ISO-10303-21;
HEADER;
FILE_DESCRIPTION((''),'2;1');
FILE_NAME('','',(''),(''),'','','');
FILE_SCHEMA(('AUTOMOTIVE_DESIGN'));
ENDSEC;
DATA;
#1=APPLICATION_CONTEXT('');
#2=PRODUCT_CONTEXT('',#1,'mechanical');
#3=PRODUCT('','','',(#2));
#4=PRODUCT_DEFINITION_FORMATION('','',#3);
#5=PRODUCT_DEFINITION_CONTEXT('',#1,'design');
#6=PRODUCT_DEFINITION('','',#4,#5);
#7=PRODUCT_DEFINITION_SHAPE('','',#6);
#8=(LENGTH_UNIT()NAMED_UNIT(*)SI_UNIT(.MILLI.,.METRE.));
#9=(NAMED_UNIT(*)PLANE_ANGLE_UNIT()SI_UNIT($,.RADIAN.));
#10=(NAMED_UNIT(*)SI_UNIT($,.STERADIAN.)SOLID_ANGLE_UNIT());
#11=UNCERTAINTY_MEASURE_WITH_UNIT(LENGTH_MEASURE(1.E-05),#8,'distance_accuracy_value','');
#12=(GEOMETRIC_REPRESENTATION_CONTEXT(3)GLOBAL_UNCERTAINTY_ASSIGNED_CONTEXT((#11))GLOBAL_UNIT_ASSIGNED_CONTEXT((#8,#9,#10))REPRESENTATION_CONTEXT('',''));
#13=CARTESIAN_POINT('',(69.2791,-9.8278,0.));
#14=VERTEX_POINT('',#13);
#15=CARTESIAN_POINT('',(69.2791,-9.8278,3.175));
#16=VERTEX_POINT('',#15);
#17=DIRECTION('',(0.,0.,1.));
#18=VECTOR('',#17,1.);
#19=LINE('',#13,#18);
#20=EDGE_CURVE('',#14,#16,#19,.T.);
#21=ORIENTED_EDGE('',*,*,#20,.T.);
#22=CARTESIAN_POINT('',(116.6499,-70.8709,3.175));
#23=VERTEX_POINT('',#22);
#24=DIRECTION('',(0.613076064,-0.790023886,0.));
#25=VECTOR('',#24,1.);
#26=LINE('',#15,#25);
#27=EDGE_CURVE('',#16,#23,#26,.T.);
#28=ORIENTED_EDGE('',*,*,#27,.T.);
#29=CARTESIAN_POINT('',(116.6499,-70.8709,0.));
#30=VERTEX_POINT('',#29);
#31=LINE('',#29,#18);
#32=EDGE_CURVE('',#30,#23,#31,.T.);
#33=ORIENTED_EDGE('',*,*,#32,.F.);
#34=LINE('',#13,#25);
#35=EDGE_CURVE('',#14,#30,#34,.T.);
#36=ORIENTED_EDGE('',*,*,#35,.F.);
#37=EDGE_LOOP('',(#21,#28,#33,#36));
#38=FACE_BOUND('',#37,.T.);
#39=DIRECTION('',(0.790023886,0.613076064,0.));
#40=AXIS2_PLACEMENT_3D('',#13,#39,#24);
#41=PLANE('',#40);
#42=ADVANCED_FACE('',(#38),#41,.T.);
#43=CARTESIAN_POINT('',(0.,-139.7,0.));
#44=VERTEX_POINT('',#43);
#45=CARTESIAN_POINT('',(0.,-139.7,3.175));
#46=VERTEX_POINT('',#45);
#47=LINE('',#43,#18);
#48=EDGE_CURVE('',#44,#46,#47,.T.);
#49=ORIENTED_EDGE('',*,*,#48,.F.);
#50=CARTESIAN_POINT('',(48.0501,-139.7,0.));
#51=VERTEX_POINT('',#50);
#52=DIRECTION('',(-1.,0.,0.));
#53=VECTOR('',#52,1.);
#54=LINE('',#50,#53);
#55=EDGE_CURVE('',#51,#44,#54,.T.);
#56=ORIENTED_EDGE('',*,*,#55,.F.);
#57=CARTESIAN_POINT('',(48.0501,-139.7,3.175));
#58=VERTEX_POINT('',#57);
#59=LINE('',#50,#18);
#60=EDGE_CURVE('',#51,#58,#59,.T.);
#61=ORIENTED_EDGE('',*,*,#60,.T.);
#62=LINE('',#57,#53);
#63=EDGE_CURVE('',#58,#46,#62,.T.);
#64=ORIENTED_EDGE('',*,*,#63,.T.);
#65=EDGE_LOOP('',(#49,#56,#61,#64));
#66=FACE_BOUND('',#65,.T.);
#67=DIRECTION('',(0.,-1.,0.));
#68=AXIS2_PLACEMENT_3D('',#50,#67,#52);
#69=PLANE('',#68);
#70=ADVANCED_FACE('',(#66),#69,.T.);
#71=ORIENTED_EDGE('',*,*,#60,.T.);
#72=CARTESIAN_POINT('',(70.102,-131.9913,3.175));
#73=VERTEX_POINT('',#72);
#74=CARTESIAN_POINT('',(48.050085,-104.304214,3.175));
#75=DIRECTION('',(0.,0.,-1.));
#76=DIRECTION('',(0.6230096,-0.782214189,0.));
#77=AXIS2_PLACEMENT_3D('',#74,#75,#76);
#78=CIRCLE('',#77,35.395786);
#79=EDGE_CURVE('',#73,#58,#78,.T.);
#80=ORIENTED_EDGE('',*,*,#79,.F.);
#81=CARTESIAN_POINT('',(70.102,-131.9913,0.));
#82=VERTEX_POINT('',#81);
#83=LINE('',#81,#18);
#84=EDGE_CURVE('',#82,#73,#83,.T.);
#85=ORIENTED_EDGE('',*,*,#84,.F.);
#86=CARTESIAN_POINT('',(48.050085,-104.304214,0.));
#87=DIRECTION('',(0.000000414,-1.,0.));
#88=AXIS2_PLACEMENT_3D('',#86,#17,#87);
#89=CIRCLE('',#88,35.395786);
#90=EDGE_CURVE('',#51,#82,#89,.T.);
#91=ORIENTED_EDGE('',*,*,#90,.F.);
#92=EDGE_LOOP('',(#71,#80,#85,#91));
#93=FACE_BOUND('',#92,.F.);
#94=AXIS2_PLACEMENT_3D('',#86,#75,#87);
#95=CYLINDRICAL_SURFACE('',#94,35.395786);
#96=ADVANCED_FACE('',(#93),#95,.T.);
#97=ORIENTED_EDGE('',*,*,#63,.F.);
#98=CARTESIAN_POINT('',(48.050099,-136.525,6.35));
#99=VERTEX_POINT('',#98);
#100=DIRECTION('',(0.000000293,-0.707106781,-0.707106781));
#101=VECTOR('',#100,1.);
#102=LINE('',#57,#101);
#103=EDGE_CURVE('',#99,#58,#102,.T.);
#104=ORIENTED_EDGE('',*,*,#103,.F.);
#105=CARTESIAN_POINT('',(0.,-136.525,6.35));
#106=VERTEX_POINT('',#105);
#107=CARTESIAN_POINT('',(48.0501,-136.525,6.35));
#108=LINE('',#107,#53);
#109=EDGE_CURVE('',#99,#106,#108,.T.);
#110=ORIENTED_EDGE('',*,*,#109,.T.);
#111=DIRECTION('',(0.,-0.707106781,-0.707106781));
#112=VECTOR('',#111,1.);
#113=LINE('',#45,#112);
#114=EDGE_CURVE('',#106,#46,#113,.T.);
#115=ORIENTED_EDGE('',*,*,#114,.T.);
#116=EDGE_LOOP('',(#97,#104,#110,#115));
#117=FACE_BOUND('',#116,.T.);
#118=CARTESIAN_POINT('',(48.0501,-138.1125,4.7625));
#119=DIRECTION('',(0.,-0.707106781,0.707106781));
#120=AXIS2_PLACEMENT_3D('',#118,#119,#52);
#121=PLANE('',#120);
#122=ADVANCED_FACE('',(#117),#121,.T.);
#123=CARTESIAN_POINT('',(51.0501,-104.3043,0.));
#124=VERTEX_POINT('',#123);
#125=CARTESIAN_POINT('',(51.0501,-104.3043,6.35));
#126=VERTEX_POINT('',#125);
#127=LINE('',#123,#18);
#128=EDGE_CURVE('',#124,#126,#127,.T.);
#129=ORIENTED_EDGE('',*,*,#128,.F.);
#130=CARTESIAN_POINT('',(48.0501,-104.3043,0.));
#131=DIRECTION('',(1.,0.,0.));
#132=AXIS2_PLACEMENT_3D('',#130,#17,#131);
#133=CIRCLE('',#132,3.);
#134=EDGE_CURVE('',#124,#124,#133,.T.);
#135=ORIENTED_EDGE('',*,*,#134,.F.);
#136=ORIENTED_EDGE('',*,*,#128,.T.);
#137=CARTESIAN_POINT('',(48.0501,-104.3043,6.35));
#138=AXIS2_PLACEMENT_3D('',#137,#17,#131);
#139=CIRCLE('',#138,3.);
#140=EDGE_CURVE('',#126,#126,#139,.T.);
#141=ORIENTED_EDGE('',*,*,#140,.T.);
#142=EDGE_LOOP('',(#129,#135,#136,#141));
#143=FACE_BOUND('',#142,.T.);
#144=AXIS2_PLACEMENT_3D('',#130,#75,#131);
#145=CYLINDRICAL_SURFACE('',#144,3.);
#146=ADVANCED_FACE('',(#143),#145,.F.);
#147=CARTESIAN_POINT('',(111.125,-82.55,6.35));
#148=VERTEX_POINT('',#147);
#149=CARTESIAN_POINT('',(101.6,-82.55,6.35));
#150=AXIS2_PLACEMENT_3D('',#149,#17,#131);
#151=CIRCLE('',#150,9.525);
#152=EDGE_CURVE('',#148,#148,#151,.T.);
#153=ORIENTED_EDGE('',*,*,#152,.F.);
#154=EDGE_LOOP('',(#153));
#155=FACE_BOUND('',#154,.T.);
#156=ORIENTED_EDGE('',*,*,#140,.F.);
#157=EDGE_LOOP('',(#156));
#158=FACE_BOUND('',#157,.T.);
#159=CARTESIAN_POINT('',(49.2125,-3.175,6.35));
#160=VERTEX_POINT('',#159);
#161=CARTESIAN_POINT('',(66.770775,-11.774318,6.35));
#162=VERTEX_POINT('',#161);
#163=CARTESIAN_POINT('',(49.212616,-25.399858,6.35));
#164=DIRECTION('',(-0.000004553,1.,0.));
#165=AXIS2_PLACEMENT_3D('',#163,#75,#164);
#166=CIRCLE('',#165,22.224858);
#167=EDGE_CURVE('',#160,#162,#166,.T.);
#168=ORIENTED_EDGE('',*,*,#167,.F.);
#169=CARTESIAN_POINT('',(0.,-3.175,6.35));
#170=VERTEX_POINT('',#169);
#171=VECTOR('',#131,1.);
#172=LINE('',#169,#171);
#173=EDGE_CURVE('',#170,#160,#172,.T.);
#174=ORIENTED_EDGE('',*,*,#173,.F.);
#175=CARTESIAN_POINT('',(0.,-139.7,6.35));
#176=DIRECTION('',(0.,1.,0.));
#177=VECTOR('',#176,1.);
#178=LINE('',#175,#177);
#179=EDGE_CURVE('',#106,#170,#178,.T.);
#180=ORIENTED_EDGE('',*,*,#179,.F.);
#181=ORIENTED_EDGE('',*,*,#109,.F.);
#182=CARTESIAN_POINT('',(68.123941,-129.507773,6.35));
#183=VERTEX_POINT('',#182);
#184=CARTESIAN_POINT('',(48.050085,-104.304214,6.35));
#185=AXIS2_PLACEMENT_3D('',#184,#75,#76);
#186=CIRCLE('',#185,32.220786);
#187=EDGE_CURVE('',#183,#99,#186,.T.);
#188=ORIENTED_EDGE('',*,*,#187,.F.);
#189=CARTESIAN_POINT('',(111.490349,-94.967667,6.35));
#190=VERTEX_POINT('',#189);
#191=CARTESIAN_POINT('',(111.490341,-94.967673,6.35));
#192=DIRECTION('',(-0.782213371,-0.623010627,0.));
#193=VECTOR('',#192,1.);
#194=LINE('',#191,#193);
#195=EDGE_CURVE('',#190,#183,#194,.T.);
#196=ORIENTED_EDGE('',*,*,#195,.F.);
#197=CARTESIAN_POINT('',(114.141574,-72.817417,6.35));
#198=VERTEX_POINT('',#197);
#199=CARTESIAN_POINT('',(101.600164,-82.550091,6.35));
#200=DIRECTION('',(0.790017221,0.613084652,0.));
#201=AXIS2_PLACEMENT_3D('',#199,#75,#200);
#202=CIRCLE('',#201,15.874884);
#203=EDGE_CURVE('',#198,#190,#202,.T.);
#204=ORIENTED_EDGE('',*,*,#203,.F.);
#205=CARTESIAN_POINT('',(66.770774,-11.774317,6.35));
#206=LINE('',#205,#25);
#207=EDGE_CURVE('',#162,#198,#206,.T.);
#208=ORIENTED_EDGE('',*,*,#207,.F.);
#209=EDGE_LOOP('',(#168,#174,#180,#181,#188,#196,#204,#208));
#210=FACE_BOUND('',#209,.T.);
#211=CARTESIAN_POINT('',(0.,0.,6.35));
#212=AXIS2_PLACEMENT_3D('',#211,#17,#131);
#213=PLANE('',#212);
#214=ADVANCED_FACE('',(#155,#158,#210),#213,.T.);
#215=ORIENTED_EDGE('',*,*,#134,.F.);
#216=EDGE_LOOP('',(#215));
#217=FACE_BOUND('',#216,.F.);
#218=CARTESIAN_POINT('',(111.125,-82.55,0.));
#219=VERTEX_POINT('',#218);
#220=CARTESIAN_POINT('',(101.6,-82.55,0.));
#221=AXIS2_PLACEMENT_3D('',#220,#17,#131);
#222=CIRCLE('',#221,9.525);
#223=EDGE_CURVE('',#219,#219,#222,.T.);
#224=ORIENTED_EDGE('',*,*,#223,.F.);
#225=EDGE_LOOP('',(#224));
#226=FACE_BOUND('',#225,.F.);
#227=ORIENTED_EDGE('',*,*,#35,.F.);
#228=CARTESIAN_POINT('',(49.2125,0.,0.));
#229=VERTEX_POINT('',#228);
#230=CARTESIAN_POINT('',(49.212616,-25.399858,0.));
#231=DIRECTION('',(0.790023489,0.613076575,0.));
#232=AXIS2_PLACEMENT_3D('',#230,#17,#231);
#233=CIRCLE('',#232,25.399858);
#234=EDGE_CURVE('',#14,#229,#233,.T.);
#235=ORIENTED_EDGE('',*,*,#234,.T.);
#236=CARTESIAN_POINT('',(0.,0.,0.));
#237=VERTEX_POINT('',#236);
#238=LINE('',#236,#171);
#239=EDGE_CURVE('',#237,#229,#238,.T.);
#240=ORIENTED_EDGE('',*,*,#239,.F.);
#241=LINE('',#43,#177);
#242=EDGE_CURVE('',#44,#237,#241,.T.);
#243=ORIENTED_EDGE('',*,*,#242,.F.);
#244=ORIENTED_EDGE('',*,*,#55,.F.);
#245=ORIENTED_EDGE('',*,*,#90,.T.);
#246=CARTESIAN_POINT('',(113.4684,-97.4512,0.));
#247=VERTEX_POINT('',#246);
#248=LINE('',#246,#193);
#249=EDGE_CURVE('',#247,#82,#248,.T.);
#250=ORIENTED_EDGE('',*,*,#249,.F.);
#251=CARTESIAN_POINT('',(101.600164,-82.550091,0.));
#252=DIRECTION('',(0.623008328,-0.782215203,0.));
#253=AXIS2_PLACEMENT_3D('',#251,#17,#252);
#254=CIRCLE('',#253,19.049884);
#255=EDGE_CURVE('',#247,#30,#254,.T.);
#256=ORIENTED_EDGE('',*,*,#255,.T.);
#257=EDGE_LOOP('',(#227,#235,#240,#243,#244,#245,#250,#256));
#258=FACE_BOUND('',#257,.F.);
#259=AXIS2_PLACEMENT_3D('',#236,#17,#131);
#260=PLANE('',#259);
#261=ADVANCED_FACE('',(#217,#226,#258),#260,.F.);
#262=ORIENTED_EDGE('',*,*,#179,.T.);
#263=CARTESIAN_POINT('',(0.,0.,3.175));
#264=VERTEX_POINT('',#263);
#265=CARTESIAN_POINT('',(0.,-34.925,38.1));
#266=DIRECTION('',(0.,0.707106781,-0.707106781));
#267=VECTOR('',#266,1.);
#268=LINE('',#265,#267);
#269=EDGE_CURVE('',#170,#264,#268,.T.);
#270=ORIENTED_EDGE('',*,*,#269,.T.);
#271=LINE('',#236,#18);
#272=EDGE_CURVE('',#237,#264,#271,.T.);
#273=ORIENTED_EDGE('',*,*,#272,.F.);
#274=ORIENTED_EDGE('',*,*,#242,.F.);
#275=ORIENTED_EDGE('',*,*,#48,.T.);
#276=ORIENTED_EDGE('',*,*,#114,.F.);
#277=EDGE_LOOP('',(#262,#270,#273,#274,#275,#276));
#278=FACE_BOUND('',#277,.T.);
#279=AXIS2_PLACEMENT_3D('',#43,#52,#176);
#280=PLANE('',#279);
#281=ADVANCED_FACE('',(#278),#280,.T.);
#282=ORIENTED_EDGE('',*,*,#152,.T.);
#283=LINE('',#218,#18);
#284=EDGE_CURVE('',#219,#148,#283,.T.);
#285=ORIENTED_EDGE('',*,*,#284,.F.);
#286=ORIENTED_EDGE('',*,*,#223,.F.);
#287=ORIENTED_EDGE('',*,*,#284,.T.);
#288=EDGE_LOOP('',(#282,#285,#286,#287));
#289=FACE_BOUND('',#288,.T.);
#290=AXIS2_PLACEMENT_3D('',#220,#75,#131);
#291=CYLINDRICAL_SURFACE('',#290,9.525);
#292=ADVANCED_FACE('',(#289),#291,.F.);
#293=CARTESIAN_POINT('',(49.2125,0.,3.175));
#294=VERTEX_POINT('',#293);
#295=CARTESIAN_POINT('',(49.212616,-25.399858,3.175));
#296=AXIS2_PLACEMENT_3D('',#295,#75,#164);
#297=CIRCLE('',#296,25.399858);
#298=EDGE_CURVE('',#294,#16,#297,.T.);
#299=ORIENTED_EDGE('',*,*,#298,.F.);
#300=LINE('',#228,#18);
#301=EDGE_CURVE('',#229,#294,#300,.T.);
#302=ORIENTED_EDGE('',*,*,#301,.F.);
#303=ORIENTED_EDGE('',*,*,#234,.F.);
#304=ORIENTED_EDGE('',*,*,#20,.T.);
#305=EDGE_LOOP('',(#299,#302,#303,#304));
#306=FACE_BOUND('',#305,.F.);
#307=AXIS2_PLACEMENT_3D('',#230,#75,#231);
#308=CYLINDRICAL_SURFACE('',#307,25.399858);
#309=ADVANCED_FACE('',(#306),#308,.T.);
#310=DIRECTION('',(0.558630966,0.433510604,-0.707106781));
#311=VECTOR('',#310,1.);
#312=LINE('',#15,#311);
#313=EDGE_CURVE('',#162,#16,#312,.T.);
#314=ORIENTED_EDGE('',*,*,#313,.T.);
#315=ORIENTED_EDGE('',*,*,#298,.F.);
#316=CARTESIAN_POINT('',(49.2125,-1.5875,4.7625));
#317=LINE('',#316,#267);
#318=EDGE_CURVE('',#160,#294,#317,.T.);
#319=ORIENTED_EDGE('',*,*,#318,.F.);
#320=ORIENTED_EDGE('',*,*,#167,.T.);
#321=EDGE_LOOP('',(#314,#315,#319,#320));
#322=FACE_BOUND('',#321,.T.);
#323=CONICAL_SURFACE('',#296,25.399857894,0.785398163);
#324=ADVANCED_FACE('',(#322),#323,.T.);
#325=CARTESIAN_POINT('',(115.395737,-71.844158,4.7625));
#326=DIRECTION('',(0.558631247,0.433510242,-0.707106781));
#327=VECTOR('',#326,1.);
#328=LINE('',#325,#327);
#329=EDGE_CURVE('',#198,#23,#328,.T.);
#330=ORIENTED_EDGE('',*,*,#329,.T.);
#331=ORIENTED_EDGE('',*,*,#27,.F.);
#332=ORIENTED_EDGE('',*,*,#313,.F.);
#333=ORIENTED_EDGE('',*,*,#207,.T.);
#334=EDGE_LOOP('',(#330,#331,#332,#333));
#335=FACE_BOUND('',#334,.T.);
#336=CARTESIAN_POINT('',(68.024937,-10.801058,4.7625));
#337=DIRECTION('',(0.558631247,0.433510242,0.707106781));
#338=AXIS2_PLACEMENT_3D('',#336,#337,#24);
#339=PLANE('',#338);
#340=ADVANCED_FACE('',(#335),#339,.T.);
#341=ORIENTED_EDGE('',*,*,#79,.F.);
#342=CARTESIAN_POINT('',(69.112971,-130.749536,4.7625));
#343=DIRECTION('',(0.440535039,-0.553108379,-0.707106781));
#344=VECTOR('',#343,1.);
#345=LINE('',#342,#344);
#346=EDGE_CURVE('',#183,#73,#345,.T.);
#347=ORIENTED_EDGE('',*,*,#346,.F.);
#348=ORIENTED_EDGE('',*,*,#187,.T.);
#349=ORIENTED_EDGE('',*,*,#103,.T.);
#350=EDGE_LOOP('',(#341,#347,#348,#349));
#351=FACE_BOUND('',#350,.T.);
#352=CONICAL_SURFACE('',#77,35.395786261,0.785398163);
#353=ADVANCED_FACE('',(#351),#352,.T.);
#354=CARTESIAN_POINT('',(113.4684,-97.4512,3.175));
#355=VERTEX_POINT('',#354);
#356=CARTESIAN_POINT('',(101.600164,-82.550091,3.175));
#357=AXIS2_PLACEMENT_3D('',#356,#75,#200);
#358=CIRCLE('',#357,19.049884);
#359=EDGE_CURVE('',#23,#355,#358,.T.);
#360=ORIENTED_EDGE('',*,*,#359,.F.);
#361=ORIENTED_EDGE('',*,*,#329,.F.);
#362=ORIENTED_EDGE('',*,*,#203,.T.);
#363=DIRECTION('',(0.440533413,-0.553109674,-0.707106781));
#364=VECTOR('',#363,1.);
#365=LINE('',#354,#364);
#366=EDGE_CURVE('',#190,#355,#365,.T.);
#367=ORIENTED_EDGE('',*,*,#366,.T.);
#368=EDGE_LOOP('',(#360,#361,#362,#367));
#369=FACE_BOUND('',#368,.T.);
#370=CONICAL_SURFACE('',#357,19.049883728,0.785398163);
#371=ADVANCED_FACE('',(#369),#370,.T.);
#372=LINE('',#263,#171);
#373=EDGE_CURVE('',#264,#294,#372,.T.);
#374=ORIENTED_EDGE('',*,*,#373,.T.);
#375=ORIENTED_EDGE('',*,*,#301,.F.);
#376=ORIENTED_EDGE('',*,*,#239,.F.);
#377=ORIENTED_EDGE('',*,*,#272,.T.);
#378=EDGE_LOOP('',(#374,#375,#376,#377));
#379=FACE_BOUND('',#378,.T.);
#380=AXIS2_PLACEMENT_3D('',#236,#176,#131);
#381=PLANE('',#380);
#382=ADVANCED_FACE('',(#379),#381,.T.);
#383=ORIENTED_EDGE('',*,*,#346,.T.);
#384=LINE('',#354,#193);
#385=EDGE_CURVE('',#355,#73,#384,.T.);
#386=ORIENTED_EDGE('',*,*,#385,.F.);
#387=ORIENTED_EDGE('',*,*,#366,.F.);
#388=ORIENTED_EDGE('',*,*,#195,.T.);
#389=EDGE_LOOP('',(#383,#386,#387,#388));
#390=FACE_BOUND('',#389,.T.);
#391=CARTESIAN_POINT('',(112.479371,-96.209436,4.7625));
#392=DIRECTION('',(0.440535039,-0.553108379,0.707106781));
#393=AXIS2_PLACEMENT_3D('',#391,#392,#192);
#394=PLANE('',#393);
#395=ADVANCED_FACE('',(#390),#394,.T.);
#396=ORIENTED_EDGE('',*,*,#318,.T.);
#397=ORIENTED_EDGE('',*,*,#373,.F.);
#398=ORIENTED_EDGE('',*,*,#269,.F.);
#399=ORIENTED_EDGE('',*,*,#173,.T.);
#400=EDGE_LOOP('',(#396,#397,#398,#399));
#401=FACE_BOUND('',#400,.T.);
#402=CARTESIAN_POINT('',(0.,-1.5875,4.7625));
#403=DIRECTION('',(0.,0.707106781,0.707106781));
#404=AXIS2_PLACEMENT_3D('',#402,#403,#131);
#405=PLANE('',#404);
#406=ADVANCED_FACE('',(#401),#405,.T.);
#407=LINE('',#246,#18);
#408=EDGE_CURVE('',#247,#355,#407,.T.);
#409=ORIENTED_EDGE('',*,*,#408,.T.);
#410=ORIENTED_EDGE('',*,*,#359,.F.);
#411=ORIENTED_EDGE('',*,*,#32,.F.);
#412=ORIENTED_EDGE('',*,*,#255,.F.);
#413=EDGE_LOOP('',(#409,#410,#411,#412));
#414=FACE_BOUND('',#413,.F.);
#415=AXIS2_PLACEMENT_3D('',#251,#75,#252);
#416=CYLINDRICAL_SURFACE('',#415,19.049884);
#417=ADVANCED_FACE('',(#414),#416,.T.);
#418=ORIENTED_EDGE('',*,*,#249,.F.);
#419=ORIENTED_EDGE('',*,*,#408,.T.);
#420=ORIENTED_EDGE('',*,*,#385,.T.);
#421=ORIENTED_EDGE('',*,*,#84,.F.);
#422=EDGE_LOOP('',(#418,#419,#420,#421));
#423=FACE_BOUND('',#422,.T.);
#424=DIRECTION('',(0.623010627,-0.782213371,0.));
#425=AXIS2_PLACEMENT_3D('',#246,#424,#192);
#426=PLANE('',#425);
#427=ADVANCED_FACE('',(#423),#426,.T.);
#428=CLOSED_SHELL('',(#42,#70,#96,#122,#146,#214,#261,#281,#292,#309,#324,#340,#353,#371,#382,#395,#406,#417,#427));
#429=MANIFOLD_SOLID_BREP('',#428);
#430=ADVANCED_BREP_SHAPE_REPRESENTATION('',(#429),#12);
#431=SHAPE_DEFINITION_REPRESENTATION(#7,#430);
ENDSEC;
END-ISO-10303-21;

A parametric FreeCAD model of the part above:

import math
import FreeCAD as App
import Part
import Sketcher
Q = App.Units.Quantity


def edges_at(feature, points):
    """Names of the edges that pass closest to the given points."""
    edges = feature.Shape.Edges
    near = lambda p: min(range(len(edges)), key=lambda i: edges[i].distToShape(Part.Vertex(*p))[0])
    return sorted({f"Edge{near(p) + 1}" for p in points})

doc = App.newDocument("Part")
body = doc.addObject("PartDesign::Body", "Body")

# Sketch on XY plane
sketch1 = body.newObject("Sketcher::SketchObject", "Sketch")
sketch1.AttachmentSupport = (doc.getObject("XY_Plane"), [""])
sketch1.MapMode = "FlatFace"
sketch1.addGeometry([
    Part.LineSegment(App.Vector(49.2125, 0, 0), App.Vector(0, 0, 0)),  # 0
    Part.LineSegment(App.Vector(0, 0, 0), App.Vector(0, -139.7, 0)),  # 1
    Part.LineSegment(App.Vector(0, -139.7, 0), App.Vector(48.0501, -139.7, 0)),  # 2
    Part.ArcOfCircle(Part.Circle(App.Vector(48.0501, -104.3043, 0), App.Vector(0, 0, 1), 35.3957), math.radians(-90), math.radians(-51.463685)),  # 3
    Part.LineSegment(App.Vector(70.102, -131.9913, 0), App.Vector(113.4684, -97.4512, 0)),  # 4
    Part.ArcOfCircle(Part.Circle(App.Vector(101.6, -82.55, 0), App.Vector(0, 0, 1), 19.050057), math.radians(-51.463633), math.radians(37.81236)),  # 5
    Part.LineSegment(App.Vector(116.6499, -70.8709, 0), App.Vector(69.2791, -9.8278, 0)),  # 6
    Part.ArcOfCircle(Part.Circle(App.Vector(49.2125, -25.4, 0), App.Vector(0, 0, 1), 25.400036), math.radians(37.812387), math.radians(90)),  # 7
    Part.Circle(App.Vector(48.0501, -104.3043, 0), App.Vector(0, 0, 1), 3),  # 8
    Part.Circle(App.Vector(101.6, -82.55, 0), App.Vector(0, 0, 1), 9.525),  # 9
], False)
sketch1.addConstraint([
    Sketcher.Constraint("Coincident", 0, 2, 1, 1),
    Sketcher.Constraint("Coincident", 1, 2, 2, 1),
    Sketcher.Constraint("Tangent", 2, 2, 3, 1),
    Sketcher.Constraint("Tangent", 3, 2, 4, 1),
    Sketcher.Constraint("Tangent", 4, 2, 5, 1),
    Sketcher.Constraint("Tangent", 5, 2, 6, 1),
    Sketcher.Constraint("Tangent", 6, 2, 7, 1),
    Sketcher.Constraint("Tangent", 7, 2, 0, 1),
    Sketcher.Constraint("Horizontal", 0),
    Sketcher.Constraint("Vertical", 1),
    Sketcher.Constraint("Horizontal", 2),
    Sketcher.Constraint("Coincident", 0, 2, -1, 1),
    Sketcher.Constraint("Coincident", 8, 3, 3, 3),
    Sketcher.Constraint("Coincident", 9, 3, 5, 3),
    Sketcher.Constraint("Diameter", 9, Q("0.75 in")),
    Sketcher.Constraint("Radius", 5, Q("0.75 in")),
    Sketcher.Constraint("Radius", 7, Q("1 in")),
    Sketcher.Constraint("Diameter", 8, 6.0),
    Sketcher.Constraint("DistanceY", 1, 2, 1, 1, Q("5.5 in")),
    Sketcher.Constraint("DistanceX", -1, 1, 5, 3, Q("4 in")),
    Sketcher.Constraint("DistanceX", 0, 2, 0, 1, Q("1.9375 in")),
    Sketcher.Constraint("DistanceY", 5, 3, -1, 1, Q("3.25 in")),
    Sketcher.Constraint("Radius", 3, 35.3957),
    Sketcher.Constraint("Distance", 4, Q("2.1827 in")),
])
pad1 = body.newObject("PartDesign::Pad", "Pad")
pad1.Profile = sketch1
pad1.Length = Q("0.25 in")
doc.recompute()

chamfer = body.newObject("PartDesign::Chamfer", "Chamfer")
chamfer.Base = (pad1, edges_at(pad1, [
    (92.965, -40.349, 6.35),
    (60.385, -2.589, 6.35),
    (24.606, 0, 6.35),
    (120.515, -84.814, 6.35),
    (91.785, -114.721, 6.35),
    (59.73, -137.717, 6.35),
    (24.025, -139.7, 6.35),
]))
chamfer.Size = Q("0.125 in")

doc.recompute()
